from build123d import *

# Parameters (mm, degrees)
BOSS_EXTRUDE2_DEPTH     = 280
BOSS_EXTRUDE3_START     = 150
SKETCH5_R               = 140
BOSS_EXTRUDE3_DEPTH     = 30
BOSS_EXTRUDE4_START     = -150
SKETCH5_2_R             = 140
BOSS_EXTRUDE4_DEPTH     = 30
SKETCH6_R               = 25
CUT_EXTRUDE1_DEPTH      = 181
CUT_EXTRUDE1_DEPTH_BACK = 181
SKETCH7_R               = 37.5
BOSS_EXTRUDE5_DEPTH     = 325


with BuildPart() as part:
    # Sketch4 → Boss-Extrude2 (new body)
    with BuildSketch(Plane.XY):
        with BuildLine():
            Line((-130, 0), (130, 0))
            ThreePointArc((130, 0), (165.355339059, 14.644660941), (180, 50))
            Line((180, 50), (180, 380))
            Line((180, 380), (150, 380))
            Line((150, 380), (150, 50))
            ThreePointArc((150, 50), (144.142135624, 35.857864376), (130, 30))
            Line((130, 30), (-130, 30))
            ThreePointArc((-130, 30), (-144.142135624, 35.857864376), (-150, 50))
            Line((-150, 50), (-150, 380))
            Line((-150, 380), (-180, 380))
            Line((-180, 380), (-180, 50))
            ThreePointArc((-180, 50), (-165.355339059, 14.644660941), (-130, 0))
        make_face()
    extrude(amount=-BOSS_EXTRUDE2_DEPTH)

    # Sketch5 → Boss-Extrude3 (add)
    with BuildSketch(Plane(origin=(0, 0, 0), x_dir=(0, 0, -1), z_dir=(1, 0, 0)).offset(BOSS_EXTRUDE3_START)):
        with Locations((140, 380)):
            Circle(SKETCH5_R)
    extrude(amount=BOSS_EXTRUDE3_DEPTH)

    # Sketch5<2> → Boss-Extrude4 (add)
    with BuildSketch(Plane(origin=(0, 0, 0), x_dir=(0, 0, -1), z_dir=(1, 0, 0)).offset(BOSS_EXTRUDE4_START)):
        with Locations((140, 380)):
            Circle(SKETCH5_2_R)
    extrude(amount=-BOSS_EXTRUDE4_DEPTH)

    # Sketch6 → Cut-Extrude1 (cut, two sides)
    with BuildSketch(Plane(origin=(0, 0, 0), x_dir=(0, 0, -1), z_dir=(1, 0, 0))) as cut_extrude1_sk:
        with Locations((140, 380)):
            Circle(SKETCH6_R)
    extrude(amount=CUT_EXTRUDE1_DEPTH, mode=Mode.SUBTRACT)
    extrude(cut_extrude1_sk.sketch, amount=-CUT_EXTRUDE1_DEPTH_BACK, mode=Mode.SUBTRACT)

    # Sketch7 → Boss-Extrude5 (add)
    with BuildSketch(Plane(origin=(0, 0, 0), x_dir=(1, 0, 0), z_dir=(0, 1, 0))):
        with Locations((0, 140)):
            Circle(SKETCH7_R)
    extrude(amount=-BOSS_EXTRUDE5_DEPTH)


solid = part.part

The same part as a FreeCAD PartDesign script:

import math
import FreeCAD as App
import Part
import Sketcher

V = App.Vector

doc = App.newDocument("Part")
body = doc.addObject("PartDesign::Body", "Body")

# Sketch on XY plane
sketch1 = body.newObject("Sketcher::SketchObject", "Sketch")
sketch1.AttachmentSupport = (doc.getObject("XY_Plane"), [""])
sketch1.MapMode = "FlatFace"
sketch1.addGeometry([
    Part.LineSegment(V(-130, 0, 0), V(130, 0, 0)),  # 0
    Part.ArcOfCircle(Part.Circle(V(130, 50, 0), V(0, 0, 1), 50), math.radians(-90), math.radians(0)),  # 1
    Part.LineSegment(V(180, 50, 0), V(180, 380, 0)),  # 2
    Part.LineSegment(V(180, 380, 0), V(150, 380, 0)),  # 3
    Part.LineSegment(V(150, 380, 0), V(150, 50, 0)),  # 4
    Part.ArcOfCircle(Part.Circle(V(130, 50, 0), V(0, 0, 1), 20), math.radians(-90), math.radians(0)),  # 5
    Part.LineSegment(V(130, 30, 0), V(-130, 30, 0)),  # 6
    Part.ArcOfCircle(Part.Circle(V(-130, 50, 0), V(0, 0, 1), 20), math.radians(180), math.radians(270)),  # 7
    Part.LineSegment(V(-150, 50, 0), V(-150, 380, 0)),  # 8
    Part.LineSegment(V(-150, 380, 0), V(-180, 380, 0)),  # 9
    Part.LineSegment(V(-180, 380, 0), V(-180, 50, 0)),  # 10
    Part.ArcOfCircle(Part.Circle(V(-130, 50, 0), V(0, 0, 1), 50), math.radians(-180), math.radians(-90)),  # 11
], False)
sketch1.addConstraint([
    Sketcher.Constraint("Tangent", 0, 2, 1, 1),
    Sketcher.Constraint("Tangent", 1, 2, 2, 1),
    Sketcher.Constraint("Coincident", 2, 2, 3, 1),
    Sketcher.Constraint("Coincident", 3, 2, 4, 1),
    Sketcher.Constraint("Tangent", 4, 2, 5, 2),
    Sketcher.Constraint("Tangent", 5, 1, 6, 1),
    Sketcher.Constraint("Tangent", 6, 2, 7, 2),
    Sketcher.Constraint("Tangent", 7, 1, 8, 1),
    Sketcher.Constraint("Coincident", 8, 2, 9, 1),
    Sketcher.Constraint("Coincident", 9, 2, 10, 1),
    Sketcher.Constraint("Tangent", 10, 2, 11, 1),
    Sketcher.Constraint("Tangent", 11, 2, 0, 1),
    Sketcher.Constraint("Horizontal", 0),
    Sketcher.Constraint("Vertical", 2),
    Sketcher.Constraint("Horizontal", 3),
    Sketcher.Constraint("Vertical", 4),
    Sketcher.Constraint("Horizontal", 6),
    Sketcher.Constraint("Vertical", 8),
    Sketcher.Constraint("Horizontal", 9),
    Sketcher.Constraint("Vertical", 10),
    Sketcher.Constraint("Coincident", 5, 3, 1, 3),
    Sketcher.Constraint("Coincident", 11, 3, 7, 3),
    Sketcher.Constraint("Equal", 5, 7),
    Sketcher.Constraint("Symmetric", 0, 2, 11, 2, -1, 1),
    Sketcher.Constraint("Horizontal", 3, 2, 8, 2),
    Sketcher.Constraint("Radius", 1, 50.0),
    Sketcher.Constraint("Radius", 5, 20.0),
    Sketcher.Constraint("DistanceX", 0, 1, 0, 2, 260.0),
    Sketcher.Constraint("DistanceY", 2, 1, 2, 2, 330.0),
])
pad1 = body.newObject("PartDesign::Pad", "Pad")
pad1.Profile = sketch1
pad1.Length = 280
pad1.Reversed = True

# Sketch on YZ plane
sketch2 = body.newObject("Sketcher::SketchObject", "Sketch001")
sketch2.AttachmentSupport = (doc.getObject("YZ_Plane"), [""])
sketch2.MapMode = "FlatFace"
sketch2.AttachmentOffset = App.Placement(V(0, 0, 150), App.Rotation())
sketch2.addGeometry(Part.Circle(V(380, -140, 0), V(0, 0, 1), 140), False)
sketch2.addConstraint([
    Sketcher.Constraint("Diameter", 0, 280.0),
    Sketcher.Constraint("DistanceX", -1, 1, 0, 3, 380.0),
    Sketcher.Constraint("DistanceY", 0, 3, -1, 1, 140.0),
])
pad2 = body.newObject("PartDesign::Pad", "Pad001")
pad2.Profile = sketch2
pad2.Length = 30

# Sketch on YZ plane
sketch3 = body.newObject("Sketcher::SketchObject", "Sketch002")
sketch3.AttachmentSupport = (doc.getObject("YZ_Plane"), [""])
sketch3.MapMode = "FlatFace"
sketch3.AttachmentOffset = App.Placement(V(0, 0, -150), App.Rotation())
sketch3.addGeometry(Part.Circle(V(380, -140, 0), V(0, 0, 1), 140), False)
sketch3.addConstraint([
    Sketcher.Constraint("Diameter", 0, 280.0),
    Sketcher.Constraint("DistanceX", -1, 1, 0, 3, 380.0),
    Sketcher.Constraint("DistanceY", 0, 3, -1, 1, 140.0),
])
pad3 = body.newObject("PartDesign::Pad", "Pad002")
pad3.Profile = sketch3
pad3.Length = 30
pad3.Reversed = True

# Sketch on YZ plane
sketch4 = body.newObject("Sketcher::SketchObject", "Sketch003")
sketch4.AttachmentSupport = (doc.getObject("YZ_Plane"), [""])
sketch4.MapMode = "FlatFace"
sketch4.addGeometry(Part.Circle(V(380, -140, 0), V(0, 0, 1), 25), False)
sketch4.addConstraint([
    Sketcher.Constraint("Diameter", 0, 50.0),
    Sketcher.Constraint("DistanceX", -1, 1, 0, 3, 380.0),
    Sketcher.Constraint("DistanceY", 0, 3, -1, 1, 140.0),
])
pocket1 = body.newObject("PartDesign::Pocket", "Pocket")
pocket1.Profile = sketch4
pocket1.Type = "ThroughAll"
pocket1.Midplane = True

# Sketch on XZ plane
sketch5 = body.newObject("Sketcher::SketchObject", "Sketch004")
sketch5.AttachmentSupport = (doc.getObject("XZ_Plane"), [""])
sketch5.MapMode = "FlatFace"
sketch5.addGeometry(Part.Circle(V(0, -140, 0), V(0, 0, 1), 37.5), False)
sketch5.addConstraint([
    Sketcher.Constraint("PointOnObject", 0, 3, -2),
    Sketcher.Constraint("Diameter", 0, 75.0),
    Sketcher.Constraint("DistanceY", 0, 3, -1, 1, 140.0),
])
pad4 = body.newObject("PartDesign::Pad", "Pad003")
pad4.Profile = sketch5
pad4.Length = 325

doc.recompute()
